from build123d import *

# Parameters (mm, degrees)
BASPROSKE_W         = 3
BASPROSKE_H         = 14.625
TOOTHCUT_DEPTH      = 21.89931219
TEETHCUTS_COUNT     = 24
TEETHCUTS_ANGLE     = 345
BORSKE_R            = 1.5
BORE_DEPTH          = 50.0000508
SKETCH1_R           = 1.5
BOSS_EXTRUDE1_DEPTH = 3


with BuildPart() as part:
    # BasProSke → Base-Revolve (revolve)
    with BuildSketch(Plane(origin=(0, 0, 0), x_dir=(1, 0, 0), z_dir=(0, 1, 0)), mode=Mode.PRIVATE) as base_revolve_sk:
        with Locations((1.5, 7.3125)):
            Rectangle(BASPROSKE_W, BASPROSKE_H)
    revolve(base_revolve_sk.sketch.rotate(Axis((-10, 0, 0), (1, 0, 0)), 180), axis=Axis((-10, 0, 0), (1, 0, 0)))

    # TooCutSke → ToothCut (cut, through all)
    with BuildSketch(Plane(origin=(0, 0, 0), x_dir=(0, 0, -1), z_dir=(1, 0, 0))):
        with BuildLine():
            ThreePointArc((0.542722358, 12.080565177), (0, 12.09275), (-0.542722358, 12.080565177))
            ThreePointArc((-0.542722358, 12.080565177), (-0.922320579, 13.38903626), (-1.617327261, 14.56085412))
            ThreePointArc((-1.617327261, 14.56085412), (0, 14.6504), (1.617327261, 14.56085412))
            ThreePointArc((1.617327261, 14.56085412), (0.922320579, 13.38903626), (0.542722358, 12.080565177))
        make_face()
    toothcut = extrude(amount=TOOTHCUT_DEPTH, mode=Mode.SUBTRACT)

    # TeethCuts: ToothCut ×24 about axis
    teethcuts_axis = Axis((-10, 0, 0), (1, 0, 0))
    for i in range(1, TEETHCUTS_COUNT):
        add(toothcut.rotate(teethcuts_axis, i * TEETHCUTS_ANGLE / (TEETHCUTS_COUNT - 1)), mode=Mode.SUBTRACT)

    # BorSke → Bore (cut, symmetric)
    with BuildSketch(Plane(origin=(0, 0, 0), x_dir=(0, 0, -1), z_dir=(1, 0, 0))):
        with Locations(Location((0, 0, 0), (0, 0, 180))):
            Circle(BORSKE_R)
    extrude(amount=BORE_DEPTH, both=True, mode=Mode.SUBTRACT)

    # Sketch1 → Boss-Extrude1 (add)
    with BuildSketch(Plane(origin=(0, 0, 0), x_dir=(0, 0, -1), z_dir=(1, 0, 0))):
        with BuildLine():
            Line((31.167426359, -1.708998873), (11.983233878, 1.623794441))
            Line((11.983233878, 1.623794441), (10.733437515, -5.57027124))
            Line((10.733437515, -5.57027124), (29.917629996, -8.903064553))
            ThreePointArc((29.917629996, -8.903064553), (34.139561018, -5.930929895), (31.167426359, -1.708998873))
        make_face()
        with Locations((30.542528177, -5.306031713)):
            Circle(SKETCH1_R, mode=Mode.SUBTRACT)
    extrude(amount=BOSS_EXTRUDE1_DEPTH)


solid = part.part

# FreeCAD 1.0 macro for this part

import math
import FreeCAD as App
import Part
import Sketcher
from FreeCAD import Vector


def add_polygon(sketch, points):
    """Adds a closed chain of lines whose ends are joined by coincident constraints."""
    first, n = sketch.GeometryCount, len(points)
    for a, b in zip(points, points[1:] + points[:1]):
        sketch.addGeometry(Part.LineSegment(App.Vector(*a, 0), App.Vector(*b, 0)), False)
    for i in range(n):
        sketch.addConstraint(Sketcher.Constraint("Coincident", first + i, 2, first + (i + 1) % n, 1))

doc = App.newDocument("Part")
body = doc.addObject("PartDesign::Body", "Body")

sketch1 = doc.addObject("Sketcher::SketchObject", "Sketch")
body.addObject(sketch1)
sketch1.AttachmentSupport = (doc.XZ_Plane, [""])
sketch1.MapMode = "FlatFace"
add_polygon(sketch1, [(0, -14.625), (0, 0), (3, 0), (3, -14.625)])
sketch1.addConstraint(Sketcher.Constraint("Vertical", 0))
sketch1.addConstraint(Sketcher.Constraint("Horizontal", 1))
sketch1.addConstraint(Sketcher.Constraint("Vertical", 2))
sketch1.addConstraint(Sketcher.Constraint("Horizontal", 3))
sketch1.addConstraint(Sketcher.Constraint("Coincident", 0, 2, -1, 1))
sketch1.addConstraint(Sketcher.Constraint("DistanceX", 1, 1, 1, 2, 3.0))
sketch1.addConstraint(Sketcher.Constraint("DistanceY", 0, 1, 0, 2, 14.625))
revolution = doc.addObject("PartDesign::Revolution", "Revolution")
body.addObject(revolution)
revolution.Profile = sketch1
revolution.ReferenceAxis = (sketch1, ["H_Axis"])
revolution.Angle = 360

sketch2 = doc.addObject("Sketcher::SketchObject", "Sketch001")
body.addObject(sketch2)
sketch2.AttachmentSupport = (doc.YZ_Plane, [""])
sketch2.MapMode = "FlatFace"
sketch2.addGeometry(Part.ArcOfCircle(Part.Circle(Vector(0, 0, 0), Vector(0, 0, 1), 12.09275), math.radians(-2.572297), math.radians(2.572297)), False)
sketch2.addGeometry(Part.ArcOfCircle(Part.Circle(Vector(11.242271, -5.877257, 0), Vector(0, 0, 1), 5.4), math.radians(52.080588), math.radians(81.069299)), False)
sketch2.addGeometry(Part.ArcOfCircle(Part.Circle(Vector(0, 0, 0), Vector(0, 0, 1), 14.6504), math.radians(-6.338072), math.radians(6.338072)), False)
sketch2.addGeometry(Part.ArcOfCircle(Part.Circle(Vector(11.242271, 5.877257, 0), Vector(0, 0, 1), 5.4), math.radians(-81.069299), math.radians(-52.080588)), False)
sketch2.addConstraint(Sketcher.Constraint("Coincident", 0, 1, 1, 2))
sketch2.addConstraint(Sketcher.Constraint("Coincident", 1, 1, 2, 1))
sketch2.addConstraint(Sketcher.Constraint("Coincident", 2, 2, 3, 2))
sketch2.addConstraint(Sketcher.Constraint("Coincident", 3, 1, 0, 2))
sketch2.addConstraint(Sketcher.Constraint("Coincident", 0, 3, -1, 1))
sketch2.addConstraint(Sketcher.Constraint("Coincident", 2, 3, -1, 1))
sketch2.addConstraint(Sketcher.Constraint("Equal", 1, 3))
sketch2.addConstraint(Sketcher.Constraint("Symmetric", 1, 3, 3, 3, -1))
sketch2.addConstraint(Sketcher.Constraint("Radius", 1, 5.4))
sketch2.addConstraint(Sketcher.Constraint("Radius", 2, 14.6504))
sketch2.addConstraint(Sketcher.Constraint("Radius", 0, 12.09275))
sketch2.addConstraint(Sketcher.Constraint("DistanceX", -1, 1, 1, 3, 11.242271))
sketch2.addConstraint(Sketcher.Constraint("DistanceY", 0, 1, 3, 3, 6.41998))
pocket1 = doc.addObject("PartDesign::Pocket", "Pocket")
body.addObject(pocket1)
pocket1.Profile = sketch2
pocket1.Type = "ThroughAll"
pocket1.Reversed = True
doc.recompute()

polarpattern = doc.addObject("PartDesign::PolarPattern", "PolarPattern")
body.addObject(polarpattern)
polarpattern.Originals = [pocket1]
polarpattern.Axis = (doc.X_Axis, [""])
polarpattern.Angle = 360
polarpattern.Occurrences = 24
body.Tip = polarpattern

sketch3 = doc.addObject("Sketcher::SketchObject", "Sketch002")
body.addObject(sketch3)
sketch3.AttachmentSupport = (doc.YZ_Plane, [""])
sketch3.MapMode = "FlatFace"
sketch3.addGeometry(Part.Circle(Vector(0, 0, 0), Vector(0, 0, 1), 1.5), False)
sketch3.addConstraint(Sketcher.Constraint("Coincident", 0, 3, -1, 1))
sketch3.addConstraint(Sketcher.Constraint("Diameter", 0, 3.0))
pocket2 = doc.addObject("PartDesign::Pocket", "Pocket001")
body.addObject(pocket2)
pocket2.Profile = sketch3
pocket2.Length = 100.000102
pocket2.Midplane = True

sketch4 = doc.addObject("Sketcher::SketchObject", "Sketch003")
body.addObject(sketch4)
sketch4.AttachmentSupport = (doc.YZ_Plane, [""])
sketch4.MapMode = "FlatFace"
sketch4.addGeometry(Part.LineSegment(Vector(-1.708999, -31.167426, 0), Vector(1.623794, -11.983234, 0)), False)
sketch4.addGeometry(Part.LineSegment(Vector(1.623794, -11.983234, 0), Vector(-5.570271, -10.733438, 0)), False)
sketch4.addGeometry(Part.LineSegment(Vector(-5.570271, -10.733438, 0), Vector(-8.903065, -29.91763, 0)), False)
sketch4.addGeometry(Part.ArcOfCircle(Part.Circle(Vector(-5.306032, -30.542528, 0), Vector(0, 0, 1), 3.65091), math.radians(170.144595), math.radians(350.144595)), False)
sketch4.addGeometry(Part.Circle(Vector(-5.306032, -30.542528, 0), Vector(0, 0, 1), 1.5), False)
sketch4.addConstraint(Sketcher.Constraint("Coincident", 0, 2, 1, 1))
sketch4.addConstraint(Sketcher.Constraint("Coincident", 1, 2, 2, 1))
sketch4.addConstraint(Sketcher.Constraint("Tangent", 2, 2, 3, 1))
sketch4.addConstraint(Sketcher.Constraint("Tangent", 3, 2, 0, 1))
sketch4.addConstraint(Sketcher.Constraint("Coincident", 4, 3, 3, 3))
sketch4.addConstraint(Sketcher.Constraint("Perpendicular", 0, 1))
sketch4.addConstraint(Sketcher.Constraint("Perpendicular", 1, 2))
sketch4.addConstraint(Sketcher.Constraint("Diameter", 4, 3.0))
sketch4.addConstraint(Sketcher.Constraint("Radius", 3, 3.65091))
sketch4.addConstraint(Sketcher.Constraint("DistanceX", 3, 2, -1, 1, 1.708999))
sketch4.addConstraint(Sketcher.Constraint("DistanceY", 4, 3, 2, 2, 0.624898))
sketch4.addConstraint(Sketcher.Constraint("DistanceY", 3, 3, -1, 1, 30.542528))
sketch4.addConstraint(Sketcher.Constraint("DistanceX", 1, 2, -1, 1, 5.570271))
pad1 = doc.addObject("PartDesign::Pad", "Pad")
body.addObject(pad1)
pad1.Profile = sketch4
pad1.Length = 3

doc.recompute()
